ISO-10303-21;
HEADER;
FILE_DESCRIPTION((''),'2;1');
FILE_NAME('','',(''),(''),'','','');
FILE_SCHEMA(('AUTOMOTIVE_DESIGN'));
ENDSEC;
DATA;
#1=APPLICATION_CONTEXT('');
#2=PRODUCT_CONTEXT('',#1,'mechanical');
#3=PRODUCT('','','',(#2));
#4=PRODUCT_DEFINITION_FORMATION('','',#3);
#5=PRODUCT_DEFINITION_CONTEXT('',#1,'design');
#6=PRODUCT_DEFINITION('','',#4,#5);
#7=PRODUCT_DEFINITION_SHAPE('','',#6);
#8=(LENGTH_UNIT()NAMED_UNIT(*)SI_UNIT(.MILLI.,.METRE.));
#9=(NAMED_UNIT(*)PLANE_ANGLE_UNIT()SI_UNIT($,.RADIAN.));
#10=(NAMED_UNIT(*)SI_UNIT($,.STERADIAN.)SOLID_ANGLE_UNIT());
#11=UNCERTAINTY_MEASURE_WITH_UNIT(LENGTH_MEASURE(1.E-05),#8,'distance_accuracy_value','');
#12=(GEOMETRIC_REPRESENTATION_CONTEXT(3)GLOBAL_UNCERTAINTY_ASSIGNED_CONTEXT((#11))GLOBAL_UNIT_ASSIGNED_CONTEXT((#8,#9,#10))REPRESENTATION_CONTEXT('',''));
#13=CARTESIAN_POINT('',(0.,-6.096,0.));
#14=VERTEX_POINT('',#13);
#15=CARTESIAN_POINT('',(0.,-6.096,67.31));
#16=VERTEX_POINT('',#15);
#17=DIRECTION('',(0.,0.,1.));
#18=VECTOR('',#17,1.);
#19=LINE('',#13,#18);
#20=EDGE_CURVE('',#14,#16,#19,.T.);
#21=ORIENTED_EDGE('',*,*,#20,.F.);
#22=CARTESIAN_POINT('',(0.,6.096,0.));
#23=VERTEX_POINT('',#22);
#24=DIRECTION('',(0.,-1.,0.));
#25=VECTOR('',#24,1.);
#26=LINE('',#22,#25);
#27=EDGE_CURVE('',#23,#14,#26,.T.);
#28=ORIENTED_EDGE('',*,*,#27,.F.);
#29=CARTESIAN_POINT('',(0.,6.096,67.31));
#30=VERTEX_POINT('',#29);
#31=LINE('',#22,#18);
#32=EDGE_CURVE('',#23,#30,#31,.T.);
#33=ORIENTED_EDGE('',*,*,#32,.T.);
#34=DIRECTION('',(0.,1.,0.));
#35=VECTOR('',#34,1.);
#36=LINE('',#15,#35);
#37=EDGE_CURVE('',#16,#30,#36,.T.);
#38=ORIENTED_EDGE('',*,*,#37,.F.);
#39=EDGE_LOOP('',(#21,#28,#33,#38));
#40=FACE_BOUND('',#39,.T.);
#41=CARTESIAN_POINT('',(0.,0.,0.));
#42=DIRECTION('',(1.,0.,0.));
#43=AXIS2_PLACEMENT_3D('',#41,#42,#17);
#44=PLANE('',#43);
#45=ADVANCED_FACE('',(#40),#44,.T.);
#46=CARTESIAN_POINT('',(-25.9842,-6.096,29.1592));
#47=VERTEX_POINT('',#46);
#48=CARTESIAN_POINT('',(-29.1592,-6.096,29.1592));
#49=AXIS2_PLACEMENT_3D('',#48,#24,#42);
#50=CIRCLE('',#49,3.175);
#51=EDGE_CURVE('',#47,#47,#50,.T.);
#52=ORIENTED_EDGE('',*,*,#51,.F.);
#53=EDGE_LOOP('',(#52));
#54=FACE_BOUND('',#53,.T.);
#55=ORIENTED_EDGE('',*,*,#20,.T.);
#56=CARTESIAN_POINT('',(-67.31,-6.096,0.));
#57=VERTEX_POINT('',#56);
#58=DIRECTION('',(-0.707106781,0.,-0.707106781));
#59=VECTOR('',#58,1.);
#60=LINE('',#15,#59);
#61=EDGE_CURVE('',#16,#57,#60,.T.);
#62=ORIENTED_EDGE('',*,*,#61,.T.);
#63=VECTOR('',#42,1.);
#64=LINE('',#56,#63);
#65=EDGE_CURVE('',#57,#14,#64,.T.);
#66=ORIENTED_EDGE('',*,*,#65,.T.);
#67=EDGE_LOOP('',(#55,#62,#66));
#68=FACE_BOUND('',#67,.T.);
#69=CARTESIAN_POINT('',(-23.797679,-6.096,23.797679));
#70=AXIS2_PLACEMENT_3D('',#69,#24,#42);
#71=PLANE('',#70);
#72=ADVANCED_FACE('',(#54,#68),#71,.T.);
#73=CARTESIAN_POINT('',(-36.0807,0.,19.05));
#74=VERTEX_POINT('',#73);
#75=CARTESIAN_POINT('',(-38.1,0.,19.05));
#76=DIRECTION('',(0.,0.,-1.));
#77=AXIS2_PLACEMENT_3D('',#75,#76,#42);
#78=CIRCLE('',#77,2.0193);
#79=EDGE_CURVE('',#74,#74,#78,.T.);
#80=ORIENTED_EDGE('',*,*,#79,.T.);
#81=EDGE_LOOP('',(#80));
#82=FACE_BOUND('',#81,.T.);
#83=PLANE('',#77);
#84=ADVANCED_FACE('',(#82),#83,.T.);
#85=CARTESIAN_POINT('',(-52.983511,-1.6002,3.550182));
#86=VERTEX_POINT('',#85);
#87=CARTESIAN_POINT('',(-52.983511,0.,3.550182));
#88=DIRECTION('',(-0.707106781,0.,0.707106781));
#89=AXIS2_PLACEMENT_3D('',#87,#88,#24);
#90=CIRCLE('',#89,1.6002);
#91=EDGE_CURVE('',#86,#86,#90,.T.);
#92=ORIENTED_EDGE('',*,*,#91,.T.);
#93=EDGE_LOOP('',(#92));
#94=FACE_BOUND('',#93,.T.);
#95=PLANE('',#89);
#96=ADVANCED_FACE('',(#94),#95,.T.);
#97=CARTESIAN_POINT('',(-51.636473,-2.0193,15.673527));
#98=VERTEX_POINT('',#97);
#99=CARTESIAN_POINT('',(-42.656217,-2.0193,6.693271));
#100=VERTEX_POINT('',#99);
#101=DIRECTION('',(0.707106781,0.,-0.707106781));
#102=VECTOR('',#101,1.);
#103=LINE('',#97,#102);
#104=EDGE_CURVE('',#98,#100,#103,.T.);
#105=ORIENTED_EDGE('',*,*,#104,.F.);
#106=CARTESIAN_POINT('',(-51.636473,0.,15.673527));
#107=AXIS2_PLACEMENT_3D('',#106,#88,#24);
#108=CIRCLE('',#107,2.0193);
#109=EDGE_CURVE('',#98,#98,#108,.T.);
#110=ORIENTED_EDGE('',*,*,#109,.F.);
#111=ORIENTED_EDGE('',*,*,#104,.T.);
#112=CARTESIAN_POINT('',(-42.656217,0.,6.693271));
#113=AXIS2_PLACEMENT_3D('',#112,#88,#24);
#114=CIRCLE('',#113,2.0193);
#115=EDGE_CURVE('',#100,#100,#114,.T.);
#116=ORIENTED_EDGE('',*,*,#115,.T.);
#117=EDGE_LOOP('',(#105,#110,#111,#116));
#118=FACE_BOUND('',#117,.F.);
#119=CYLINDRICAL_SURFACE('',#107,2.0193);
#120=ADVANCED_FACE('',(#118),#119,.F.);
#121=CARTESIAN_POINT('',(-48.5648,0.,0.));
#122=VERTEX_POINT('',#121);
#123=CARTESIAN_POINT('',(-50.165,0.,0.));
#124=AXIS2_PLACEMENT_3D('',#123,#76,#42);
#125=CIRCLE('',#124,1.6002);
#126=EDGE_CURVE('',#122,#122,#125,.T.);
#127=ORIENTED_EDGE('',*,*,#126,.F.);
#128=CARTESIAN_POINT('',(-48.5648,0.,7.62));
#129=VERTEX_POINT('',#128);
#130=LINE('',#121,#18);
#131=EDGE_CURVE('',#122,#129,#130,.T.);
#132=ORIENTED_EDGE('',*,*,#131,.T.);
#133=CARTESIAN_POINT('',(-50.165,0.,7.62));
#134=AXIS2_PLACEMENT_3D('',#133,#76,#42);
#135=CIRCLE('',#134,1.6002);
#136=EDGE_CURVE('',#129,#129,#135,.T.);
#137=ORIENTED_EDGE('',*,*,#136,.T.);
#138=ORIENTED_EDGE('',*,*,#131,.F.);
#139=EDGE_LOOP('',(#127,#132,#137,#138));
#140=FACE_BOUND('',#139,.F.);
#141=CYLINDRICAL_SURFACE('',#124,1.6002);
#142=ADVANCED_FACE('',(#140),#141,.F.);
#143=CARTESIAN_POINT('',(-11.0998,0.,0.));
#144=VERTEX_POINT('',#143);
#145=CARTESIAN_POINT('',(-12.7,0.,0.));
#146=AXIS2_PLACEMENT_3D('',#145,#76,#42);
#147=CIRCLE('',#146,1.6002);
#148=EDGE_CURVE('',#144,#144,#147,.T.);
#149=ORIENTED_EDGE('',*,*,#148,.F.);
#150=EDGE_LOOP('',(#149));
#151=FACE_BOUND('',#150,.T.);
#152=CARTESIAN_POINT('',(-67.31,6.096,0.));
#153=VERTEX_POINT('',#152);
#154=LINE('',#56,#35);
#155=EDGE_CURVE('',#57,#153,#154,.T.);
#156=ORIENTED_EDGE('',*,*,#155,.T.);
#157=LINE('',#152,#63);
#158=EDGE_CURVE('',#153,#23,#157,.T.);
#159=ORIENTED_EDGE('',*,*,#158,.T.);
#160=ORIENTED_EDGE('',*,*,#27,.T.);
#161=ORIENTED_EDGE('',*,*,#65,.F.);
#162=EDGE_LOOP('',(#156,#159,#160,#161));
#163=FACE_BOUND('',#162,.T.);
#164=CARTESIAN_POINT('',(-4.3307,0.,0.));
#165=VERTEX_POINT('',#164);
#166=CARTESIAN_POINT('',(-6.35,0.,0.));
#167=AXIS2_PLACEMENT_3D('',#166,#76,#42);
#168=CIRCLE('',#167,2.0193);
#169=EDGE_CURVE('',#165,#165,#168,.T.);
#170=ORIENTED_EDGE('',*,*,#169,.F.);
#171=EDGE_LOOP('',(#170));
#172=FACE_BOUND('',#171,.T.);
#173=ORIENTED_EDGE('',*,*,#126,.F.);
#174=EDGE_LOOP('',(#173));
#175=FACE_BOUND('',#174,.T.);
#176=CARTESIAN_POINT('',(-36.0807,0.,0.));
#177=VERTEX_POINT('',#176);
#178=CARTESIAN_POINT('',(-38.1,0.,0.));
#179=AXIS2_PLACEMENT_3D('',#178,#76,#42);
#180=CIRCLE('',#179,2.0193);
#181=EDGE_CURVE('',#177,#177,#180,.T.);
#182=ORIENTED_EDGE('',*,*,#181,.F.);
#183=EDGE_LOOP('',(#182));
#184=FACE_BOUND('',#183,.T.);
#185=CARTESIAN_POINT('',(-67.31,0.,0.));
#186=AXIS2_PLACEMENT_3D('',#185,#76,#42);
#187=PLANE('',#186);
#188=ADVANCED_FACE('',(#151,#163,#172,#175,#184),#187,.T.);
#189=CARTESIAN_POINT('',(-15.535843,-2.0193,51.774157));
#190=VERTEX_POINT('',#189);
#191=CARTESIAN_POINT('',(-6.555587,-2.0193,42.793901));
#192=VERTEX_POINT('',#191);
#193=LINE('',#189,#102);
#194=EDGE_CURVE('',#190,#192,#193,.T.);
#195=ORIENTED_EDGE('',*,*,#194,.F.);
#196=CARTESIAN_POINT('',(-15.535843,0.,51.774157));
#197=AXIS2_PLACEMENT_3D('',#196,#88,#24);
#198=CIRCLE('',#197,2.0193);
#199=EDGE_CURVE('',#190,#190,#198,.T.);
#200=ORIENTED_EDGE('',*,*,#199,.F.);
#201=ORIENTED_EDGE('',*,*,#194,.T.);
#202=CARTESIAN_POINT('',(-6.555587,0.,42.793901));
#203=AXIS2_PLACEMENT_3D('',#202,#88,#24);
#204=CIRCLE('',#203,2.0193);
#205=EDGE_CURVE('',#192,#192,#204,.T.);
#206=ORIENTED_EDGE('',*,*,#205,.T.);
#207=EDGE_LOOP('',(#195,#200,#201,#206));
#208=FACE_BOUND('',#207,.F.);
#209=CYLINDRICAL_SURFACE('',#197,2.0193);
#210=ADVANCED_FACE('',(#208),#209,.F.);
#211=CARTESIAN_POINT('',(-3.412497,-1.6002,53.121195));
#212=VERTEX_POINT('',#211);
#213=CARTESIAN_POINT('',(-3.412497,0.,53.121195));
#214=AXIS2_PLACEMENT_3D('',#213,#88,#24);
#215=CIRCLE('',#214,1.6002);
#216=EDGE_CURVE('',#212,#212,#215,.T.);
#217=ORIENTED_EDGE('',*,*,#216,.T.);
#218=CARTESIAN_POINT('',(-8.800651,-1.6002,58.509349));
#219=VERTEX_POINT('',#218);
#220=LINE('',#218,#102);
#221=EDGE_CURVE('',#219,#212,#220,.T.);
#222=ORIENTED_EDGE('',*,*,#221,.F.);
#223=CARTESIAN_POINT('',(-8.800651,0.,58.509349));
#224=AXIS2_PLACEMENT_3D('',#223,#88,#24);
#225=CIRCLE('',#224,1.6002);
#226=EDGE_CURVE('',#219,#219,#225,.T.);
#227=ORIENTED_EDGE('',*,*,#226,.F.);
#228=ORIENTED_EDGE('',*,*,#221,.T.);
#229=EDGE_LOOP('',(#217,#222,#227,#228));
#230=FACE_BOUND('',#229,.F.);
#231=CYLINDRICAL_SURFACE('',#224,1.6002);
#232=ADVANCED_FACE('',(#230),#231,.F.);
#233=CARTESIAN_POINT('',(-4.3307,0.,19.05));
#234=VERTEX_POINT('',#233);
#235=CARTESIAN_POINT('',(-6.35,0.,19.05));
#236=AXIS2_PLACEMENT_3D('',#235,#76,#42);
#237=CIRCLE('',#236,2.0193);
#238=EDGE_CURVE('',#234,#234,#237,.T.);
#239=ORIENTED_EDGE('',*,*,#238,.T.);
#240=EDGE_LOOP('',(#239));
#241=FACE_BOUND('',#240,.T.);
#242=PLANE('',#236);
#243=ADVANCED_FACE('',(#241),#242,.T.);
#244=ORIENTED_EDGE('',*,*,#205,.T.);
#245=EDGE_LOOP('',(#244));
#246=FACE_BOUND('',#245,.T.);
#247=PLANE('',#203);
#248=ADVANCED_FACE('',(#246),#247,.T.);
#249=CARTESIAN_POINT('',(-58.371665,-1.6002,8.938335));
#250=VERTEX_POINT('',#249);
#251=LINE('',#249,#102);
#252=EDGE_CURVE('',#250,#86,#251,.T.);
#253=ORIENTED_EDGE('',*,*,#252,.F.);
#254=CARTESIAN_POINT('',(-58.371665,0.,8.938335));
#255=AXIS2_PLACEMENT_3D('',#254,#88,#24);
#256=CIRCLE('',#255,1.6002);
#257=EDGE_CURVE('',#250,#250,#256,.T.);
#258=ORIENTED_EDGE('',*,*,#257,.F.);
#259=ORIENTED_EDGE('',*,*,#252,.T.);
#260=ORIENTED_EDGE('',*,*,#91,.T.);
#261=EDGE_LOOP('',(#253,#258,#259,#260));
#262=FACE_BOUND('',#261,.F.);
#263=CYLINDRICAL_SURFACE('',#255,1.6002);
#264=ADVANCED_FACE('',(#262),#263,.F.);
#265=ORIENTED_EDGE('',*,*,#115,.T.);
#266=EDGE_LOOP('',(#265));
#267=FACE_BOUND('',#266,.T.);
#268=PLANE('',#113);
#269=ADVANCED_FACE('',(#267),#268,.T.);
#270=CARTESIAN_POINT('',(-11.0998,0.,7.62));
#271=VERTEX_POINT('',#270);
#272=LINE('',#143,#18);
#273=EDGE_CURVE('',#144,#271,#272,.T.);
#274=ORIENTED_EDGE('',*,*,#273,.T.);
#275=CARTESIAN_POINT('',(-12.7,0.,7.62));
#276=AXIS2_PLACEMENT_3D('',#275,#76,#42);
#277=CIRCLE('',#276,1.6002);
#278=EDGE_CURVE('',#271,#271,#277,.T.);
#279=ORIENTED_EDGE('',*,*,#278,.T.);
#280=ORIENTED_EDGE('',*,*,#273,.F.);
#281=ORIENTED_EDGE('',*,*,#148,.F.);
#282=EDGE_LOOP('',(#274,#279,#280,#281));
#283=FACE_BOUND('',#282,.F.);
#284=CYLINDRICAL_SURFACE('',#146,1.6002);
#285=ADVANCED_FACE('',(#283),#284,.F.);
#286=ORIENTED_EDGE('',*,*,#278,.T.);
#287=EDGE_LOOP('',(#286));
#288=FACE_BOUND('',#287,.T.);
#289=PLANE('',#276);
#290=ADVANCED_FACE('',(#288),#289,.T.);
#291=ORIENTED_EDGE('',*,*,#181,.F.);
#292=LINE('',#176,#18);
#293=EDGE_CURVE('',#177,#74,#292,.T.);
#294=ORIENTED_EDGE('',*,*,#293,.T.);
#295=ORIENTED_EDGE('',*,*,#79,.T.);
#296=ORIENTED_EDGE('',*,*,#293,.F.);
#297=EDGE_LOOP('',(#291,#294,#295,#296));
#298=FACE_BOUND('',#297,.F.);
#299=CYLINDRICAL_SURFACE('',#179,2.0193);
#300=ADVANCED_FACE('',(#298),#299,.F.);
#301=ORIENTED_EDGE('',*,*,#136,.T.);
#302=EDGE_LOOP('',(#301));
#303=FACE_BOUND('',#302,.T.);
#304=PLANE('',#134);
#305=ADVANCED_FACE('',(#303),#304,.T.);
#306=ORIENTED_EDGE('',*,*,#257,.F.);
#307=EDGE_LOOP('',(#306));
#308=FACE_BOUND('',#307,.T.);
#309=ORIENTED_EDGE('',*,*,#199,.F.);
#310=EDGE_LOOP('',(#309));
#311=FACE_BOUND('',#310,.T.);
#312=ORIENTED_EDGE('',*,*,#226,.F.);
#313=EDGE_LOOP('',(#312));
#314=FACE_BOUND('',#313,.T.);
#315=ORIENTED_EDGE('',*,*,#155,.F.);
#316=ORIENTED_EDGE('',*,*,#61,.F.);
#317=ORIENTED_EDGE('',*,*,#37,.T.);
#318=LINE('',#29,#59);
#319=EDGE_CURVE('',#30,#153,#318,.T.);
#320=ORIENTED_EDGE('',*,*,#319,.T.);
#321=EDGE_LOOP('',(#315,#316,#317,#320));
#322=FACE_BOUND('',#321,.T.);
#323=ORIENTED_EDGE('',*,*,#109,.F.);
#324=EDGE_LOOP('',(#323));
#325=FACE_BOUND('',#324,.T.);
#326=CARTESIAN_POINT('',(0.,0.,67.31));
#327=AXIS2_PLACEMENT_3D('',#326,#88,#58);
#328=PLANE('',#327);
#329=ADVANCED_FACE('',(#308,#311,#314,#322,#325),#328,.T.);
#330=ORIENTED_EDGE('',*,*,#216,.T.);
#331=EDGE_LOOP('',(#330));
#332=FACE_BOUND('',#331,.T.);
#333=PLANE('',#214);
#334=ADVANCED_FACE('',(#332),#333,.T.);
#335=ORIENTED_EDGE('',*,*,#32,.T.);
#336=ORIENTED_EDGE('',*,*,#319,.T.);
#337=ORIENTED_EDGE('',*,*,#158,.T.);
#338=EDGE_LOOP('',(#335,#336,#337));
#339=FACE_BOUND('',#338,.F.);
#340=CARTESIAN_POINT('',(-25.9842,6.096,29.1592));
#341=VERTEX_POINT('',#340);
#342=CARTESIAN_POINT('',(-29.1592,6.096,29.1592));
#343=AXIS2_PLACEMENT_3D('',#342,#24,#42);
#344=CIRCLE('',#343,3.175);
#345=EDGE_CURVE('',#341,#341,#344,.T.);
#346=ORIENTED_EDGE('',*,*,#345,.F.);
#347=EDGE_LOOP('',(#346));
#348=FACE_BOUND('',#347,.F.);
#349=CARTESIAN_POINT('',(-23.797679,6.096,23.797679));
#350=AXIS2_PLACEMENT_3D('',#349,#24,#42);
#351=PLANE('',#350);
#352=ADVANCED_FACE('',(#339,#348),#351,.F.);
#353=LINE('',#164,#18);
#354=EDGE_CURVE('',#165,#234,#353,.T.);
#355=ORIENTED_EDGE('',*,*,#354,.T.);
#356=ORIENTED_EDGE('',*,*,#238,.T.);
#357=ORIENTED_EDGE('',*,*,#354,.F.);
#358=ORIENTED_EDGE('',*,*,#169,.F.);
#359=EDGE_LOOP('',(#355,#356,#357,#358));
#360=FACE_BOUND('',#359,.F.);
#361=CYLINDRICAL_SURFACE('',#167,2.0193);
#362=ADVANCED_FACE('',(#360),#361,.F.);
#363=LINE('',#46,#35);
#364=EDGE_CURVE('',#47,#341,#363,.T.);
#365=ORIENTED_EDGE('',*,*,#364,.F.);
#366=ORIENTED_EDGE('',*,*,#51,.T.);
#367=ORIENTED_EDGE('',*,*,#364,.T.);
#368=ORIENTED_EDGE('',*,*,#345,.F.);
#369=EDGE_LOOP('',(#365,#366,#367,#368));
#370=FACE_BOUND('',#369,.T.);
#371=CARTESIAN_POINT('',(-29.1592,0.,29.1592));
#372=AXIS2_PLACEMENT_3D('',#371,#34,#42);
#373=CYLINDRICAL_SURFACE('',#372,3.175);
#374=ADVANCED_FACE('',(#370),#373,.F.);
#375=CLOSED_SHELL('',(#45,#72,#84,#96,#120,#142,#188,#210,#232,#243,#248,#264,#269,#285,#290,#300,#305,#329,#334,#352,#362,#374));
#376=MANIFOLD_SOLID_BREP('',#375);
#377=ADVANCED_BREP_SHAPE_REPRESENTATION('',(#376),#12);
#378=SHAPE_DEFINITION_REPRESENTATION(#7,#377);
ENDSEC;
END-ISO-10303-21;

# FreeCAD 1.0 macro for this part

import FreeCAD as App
import Part
import Sketcher

V = App.Vector
Q = App.Units.Quantity


def add_polygon(sketch, points):
    """Adds a closed chain of lines whose ends are joined by coincident constraints."""
    first, n = sketch.GeometryCount, len(points)
    for a, b in zip(points, points[1:] + points[:1]):
        sketch.addGeometry(Part.LineSegment(App.Vector(*a, 0), App.Vector(*b, 0)), False)
    for i in range(n):
        sketch.addConstraint(Sketcher.Constraint("Coincident", first + i, 2, first + (i + 1) % n, 1))

doc = App.newDocument("Part")
body = doc.addObject("PartDesign::Body", "Body")

sketch1 = body.newObject("Sketcher::SketchObject", "Sketch")
sketch1.AttachmentSupport = (doc.getObject("XZ_Plane"), [""])
sketch1.MapMode = "FlatFace"
add_polygon(sketch1, [(-67.31, 0), (0, 0), (0, 67.31)])
sketch1.addGeometry(Part.Circle(V(-29.1592, 29.1592, 0), V(0, 0, 1), 3.175), False)
sketch1.addConstraint([
    Sketcher.Constraint("Horizontal", 0),
    Sketcher.Constraint("Vertical", 1),
    Sketcher.Constraint("Coincident", 0, 2, -1, 1),
    Sketcher.Constraint("Equal", 0, 1),
    Sketcher.Constraint("Diameter", 3, Q("0.25 in")),
    Sketcher.Constraint("DistanceX", 0, 1, 0, 2, Q("2.65 in")),
    Sketcher.Constraint("DistanceX", 3, 3, -1, 1, Q("1.148 in")),
    Sketcher.Constraint("DistanceY", -1, 1, 3, 3, Q("1.148 in")),
])
pad1 = body.newObject("PartDesign::Pad", "Pad")
pad1.Profile = sketch1
pad1.Length = Q("0.48 in")
pad1.Midplane = True

sketch2 = body.newObject("Sketcher::SketchObject", "Sketch001")
sketch2.Placement = App.Placement(V(-33.655, 0, 33.655), App.Rotation(V(0, -1, 0), V(0.707106781, 0, 0.707106781), V(-0.707106781, 0, 0.707106781), "ZXY"))
sketch2.addGeometry([
    Part.Circle(V(0, 35.149357, 0), V(0, 0, 1), 1.6002),
    Part.Circle(V(0, -34.954643, 0), V(0, 0, 1), 1.6002),
], False)
sketch2.addConstraint([
    Sketcher.Constraint("Equal", 0, 1),
    Sketcher.Constraint("PointOnObject", 0, 3, -2),
    Sketcher.Constraint("PointOnObject", 1, 3, -2),
    Sketcher.Constraint("Diameter", 0, Q("0.126 in")),
    Sketcher.Constraint("DistanceY", 1, 3, 0, 3, Q("2.76 in")),
    Sketcher.Constraint("DistanceY", -1, 1, 0, 3, 35.149357),
])
pocket1 = body.newObject("PartDesign::Pocket", "Pocket")
pocket1.Profile = sketch2
pocket1.Length = Q("0.3 in")

sketch3 = body.newObject("Sketcher::SketchObject", "Sketch002")
sketch3.Placement = App.Placement(V(-33.655, 0, 33.655), App.Rotation(V(0, -1, 0), V(0.707106781, 0, 0.707106781), V(-0.707106781, 0, 0.707106781), "ZXY"))
sketch3.addGeometry([
    Part.Circle(V(0, 25.624357, 0), V(0, 0, 1), 2.0193),
    Part.Circle(V(0, -25.429643, 0), V(0, 0, 1), 2.0193),
], False)
sketch3.addConstraint([
    Sketcher.Constraint("Equal", 0, 1),
    Sketcher.Constraint("PointOnObject", 0, 3, -2),
    Sketcher.Constraint("PointOnObject", 1, 3, -2),
    Sketcher.Constraint("Diameter", 0, Q("0.159 in")),
    Sketcher.Constraint("DistanceY", 1, 3, 0, 3, Q("2.01 in")),
    Sketcher.Constraint("DistanceY", -1, 1, 0, 3, 25.624357),
])
pocket2 = body.newObject("PartDesign::Pocket", "Pocket001")
pocket2.Profile = sketch3
pocket2.Length = Q("0.5 in")

sketch4 = body.newObject("Sketcher::SketchObject", "Sketch003")
sketch4.AttachmentSupport = (doc.getObject("XY_Plane"), [""])
sketch4.MapMode = "FlatFace"
sketch4.addGeometry([
    Part.Circle(V(-6.35, 0, 0), V(0, 0, 1), 2.0193),
    Part.Circle(V(-38.1, 0, 0), V(0, 0, 1), 2.0193),
], False)
sketch4.addConstraint([
    Sketcher.Constraint("Equal", 0, 1),
    Sketcher.Constraint("PointOnObject", 0, 3, -1),
    Sketcher.Constraint("PointOnObject", 1, 3, -1),
    Sketcher.Constraint("Diameter", 0, Q("0.159 in")),
    Sketcher.Constraint("DistanceX", 1, 3, -1, 1, Q("1.5 in")),
    Sketcher.Constraint("DistanceX", 0, 3, -1, 1, Q("0.25 in")),
])
pocket3 = body.newObject("PartDesign::Pocket", "Pocket002")
pocket3.Profile = sketch4
pocket3.Length = Q("0.75 in")
pocket3.Reversed = True

sketch5 = body.newObject("Sketcher::SketchObject", "Sketch004")
sketch5.AttachmentSupport = (doc.getObject("XY_Plane"), [""])
sketch5.MapMode = "FlatFace"
sketch5.addGeometry([
    Part.Circle(V(-12.7, 0, 0), V(0, 0, 1), 1.6002),
    Part.Circle(V(-50.165, 0, 0), V(0, 0, 1), 1.6002),
], False)
sketch5.addConstraint([
    Sketcher.Constraint("Equal", 0, 1),
    Sketcher.Constraint("PointOnObject", 0, 3, -1),
    Sketcher.Constraint("PointOnObject", 1, 3, -1),
    Sketcher.Constraint("Diameter", 0, Q("0.126 in")),
    Sketcher.Constraint("DistanceX", 0, 3, -1, 1, Q("0.5 in")),
    Sketcher.Constraint("DistanceX", 1, 3, -1, 1, Q("1.975 in")),
])
pocket4 = body.newObject("PartDesign::Pocket", "Pocket003")
pocket4.Profile = sketch5
pocket4.Length = Q("0.3 in")
pocket4.Reversed = True

doc.recompute()
